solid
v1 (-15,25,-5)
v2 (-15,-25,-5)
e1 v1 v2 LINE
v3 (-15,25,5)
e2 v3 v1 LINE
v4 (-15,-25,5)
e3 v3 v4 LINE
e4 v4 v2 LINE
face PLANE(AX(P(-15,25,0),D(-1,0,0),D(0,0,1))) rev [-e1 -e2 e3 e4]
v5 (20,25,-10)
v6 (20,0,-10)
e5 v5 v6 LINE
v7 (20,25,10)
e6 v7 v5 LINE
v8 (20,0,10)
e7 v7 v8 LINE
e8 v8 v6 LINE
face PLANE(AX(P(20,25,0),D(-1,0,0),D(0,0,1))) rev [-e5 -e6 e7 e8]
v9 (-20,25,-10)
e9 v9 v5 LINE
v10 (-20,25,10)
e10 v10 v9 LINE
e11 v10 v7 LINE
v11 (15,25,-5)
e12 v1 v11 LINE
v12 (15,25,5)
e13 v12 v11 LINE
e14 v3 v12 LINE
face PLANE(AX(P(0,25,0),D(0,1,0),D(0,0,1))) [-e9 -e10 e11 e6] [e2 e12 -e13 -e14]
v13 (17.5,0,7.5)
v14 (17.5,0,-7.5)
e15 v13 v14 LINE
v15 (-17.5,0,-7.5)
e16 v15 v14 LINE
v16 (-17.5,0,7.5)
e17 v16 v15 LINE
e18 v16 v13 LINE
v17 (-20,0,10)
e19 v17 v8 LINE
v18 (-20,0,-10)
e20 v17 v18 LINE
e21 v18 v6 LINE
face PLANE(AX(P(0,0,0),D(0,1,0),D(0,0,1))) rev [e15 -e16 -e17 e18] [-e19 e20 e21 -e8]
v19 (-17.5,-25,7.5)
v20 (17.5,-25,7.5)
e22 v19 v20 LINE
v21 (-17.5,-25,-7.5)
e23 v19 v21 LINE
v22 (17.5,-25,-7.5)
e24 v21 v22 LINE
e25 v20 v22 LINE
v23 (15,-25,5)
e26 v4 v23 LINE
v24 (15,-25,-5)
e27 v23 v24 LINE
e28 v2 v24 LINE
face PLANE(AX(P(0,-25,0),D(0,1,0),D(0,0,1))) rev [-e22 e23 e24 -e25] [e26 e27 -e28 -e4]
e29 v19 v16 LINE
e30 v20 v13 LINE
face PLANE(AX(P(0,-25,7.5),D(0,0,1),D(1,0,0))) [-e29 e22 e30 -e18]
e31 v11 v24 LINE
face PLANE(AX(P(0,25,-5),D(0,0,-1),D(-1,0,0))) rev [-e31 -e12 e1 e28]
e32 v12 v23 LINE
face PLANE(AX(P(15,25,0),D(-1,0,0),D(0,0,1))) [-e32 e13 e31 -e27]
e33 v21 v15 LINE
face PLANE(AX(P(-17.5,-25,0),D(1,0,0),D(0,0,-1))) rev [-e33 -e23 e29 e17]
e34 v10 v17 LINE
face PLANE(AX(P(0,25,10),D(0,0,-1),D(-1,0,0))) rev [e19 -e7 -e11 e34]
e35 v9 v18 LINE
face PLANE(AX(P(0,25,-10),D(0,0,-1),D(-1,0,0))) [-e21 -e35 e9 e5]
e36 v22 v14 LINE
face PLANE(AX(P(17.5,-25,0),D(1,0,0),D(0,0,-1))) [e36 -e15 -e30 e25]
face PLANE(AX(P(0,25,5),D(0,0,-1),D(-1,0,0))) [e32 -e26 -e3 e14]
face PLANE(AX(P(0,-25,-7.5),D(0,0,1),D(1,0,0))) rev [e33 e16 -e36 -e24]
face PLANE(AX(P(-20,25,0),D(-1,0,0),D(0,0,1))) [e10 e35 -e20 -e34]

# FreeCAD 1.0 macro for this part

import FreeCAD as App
import Part
import Sketcher
from FreeCAD import Vector
Q = App.Units.Quantity

doc = App.newDocument("Part")
body = doc.addObject("PartDesign::Body", "Body")

# Sketch on XZ plane
sketch1 = doc.addObject("Sketcher::SketchObject", "Sketch")
body.addObject(sketch1)
sketch1.AttachmentSupport = (doc.XZ_Plane, [""])
sketch1.MapMode = "FlatFace"
sketch1.addGeometry([
    Part.LineSegment(Vector(-20, -10, 0), Vector(-20, 10, 0)),  # 0
    Part.LineSegment(Vector(-20, 10, 0), Vector(20, 10, 0)),  # 1
    Part.LineSegment(Vector(20, 10, 0), Vector(20, -10, 0)),  # 2
    Part.LineSegment(Vector(20, -10, 0), Vector(-20, -10, 0)),  # 3
    Part.LineSegment(Vector(15, 5, 0), Vector(-15, 5, 0)),  # 4
    Part.LineSegment(Vector(-15, 5, 0), Vector(-15, -5, 0)),  # 5
    Part.LineSegment(Vector(-15, -5, 0), Vector(15, -5, 0)),  # 6
    Part.LineSegment(Vector(15, -5, 0), Vector(15, 5, 0)),  # 7
], False)
sketch1.addConstraint([
    Sketcher.Constraint("Coincident", 0, 2, 1, 1),
    Sketcher.Constraint("Coincident", 1, 2, 2, 1),
    Sketcher.Constraint("Coincident", 2, 2, 3, 1),
    Sketcher.Constraint("Coincident", 3, 2, 0, 1),
    Sketcher.Constraint("Coincident", 4, 2, 5, 1),
    Sketcher.Constraint("Coincident", 5, 2, 6, 1),
    Sketcher.Constraint("Coincident", 6, 2, 7, 1),
    Sketcher.Constraint("Coincident", 7, 2, 4, 1),
    Sketcher.Constraint("Vertical", 0),
    Sketcher.Constraint("Horizontal", 1),
    Sketcher.Constraint("Vertical", 2),
    Sketcher.Constraint("Horizontal", 3),
    Sketcher.Constraint("Horizontal", 4),
    Sketcher.Constraint("Vertical", 5),
    Sketcher.Constraint("Horizontal", 6),
    Sketcher.Constraint("Vertical", 7),
    Sketcher.Constraint("Symmetric", 0, 2, 2, 2, -1, 1),
    Sketcher.Constraint("Symmetric", 4, 2, 6, 2, -1, 1),
    Sketcher.Constraint("DistanceX", 1, 1, 1, 2, Q("40 mm")),
    Sketcher.Constraint("DistanceX", 4, 2, 4, 1, Q("30 mm")),
    Sketcher.Constraint("DistanceY", 0, 1, 0, 2, Q("20 mm")),
    Sketcher.Constraint("DistanceY", 5, 2, 5, 1, Q("10 mm")),
])
pad1 = doc.addObject("PartDesign::Pad", "Pad")
body.addObject(pad1)
pad1.Profile = sketch1
pad1.Length = 25
pad1.Reversed = True

# Sketch on XZ plane
sketch2 = doc.addObject("Sketcher::SketchObject", "Sketch001")
body.addObject(sketch2)
sketch2.AttachmentSupport = (doc.XZ_Plane, [""])
sketch2.MapMode = "FlatFace"
sketch2.addGeometry([
    Part.LineSegment(Vector(-18, -8, 0), Vector(-18, 8, 0)),  # 0
    Part.LineSegment(Vector(-18, 8, 0), Vector(18, 8, 0)),  # 1
    Part.LineSegment(Vector(18, 8, 0), Vector(18, -8, 0)),  # 2
    Part.LineSegment(Vector(18, -8, 0), Vector(-18, -8, 0)),  # 3
    Part.LineSegment(Vector(15, 5, 0), Vector(-15, 5, 0)),  # 4
    Part.LineSegment(Vector(-15, 5, 0), Vector(-15, -5, 0)),  # 5
    Part.LineSegment(Vector(-15, -5, 0), Vector(15, -5, 0)),  # 6
    Part.LineSegment(Vector(15, -5, 0), Vector(15, 5, 0)),  # 7
], False)
sketch2.addConstraint([
    Sketcher.Constraint("Coincident", 0, 2, 1, 1),
    Sketcher.Constraint("Coincident", 1, 2, 2, 1),
    Sketcher.Constraint("Coincident", 2, 2, 3, 1),
    Sketcher.Constraint("Coincident", 3, 2, 0, 1),
    Sketcher.Constraint("Coincident", 4, 2, 5, 1),
    Sketcher.Constraint("Coincident", 5, 2, 6, 1),
    Sketcher.Constraint("Coincident", 6, 2, 7, 1),
    Sketcher.Constraint("Coincident", 7, 2, 4, 1),
    Sketcher.Constraint("Vertical", 0),
    Sketcher.Constraint("Horizontal", 1),
    Sketcher.Constraint("Vertical", 2),
    Sketcher.Constraint("Horizontal", 3),
    Sketcher.Constraint("Horizontal", 4),
    Sketcher.Constraint("Vertical", 5),
    Sketcher.Constraint("Horizontal", 6),
    Sketcher.Constraint("Vertical", 7),
    Sketcher.Constraint("Symmetric", 0, 2, 2, 2, -1, 1),
    Sketcher.Constraint("Symmetric", 4, 2, 6, 2, -1, 1),
    Sketcher.Constraint("DistanceX", 1, 1, 1, 2, Q("35 mm")),
    Sketcher.Constraint("DistanceX", 4, 2, 4, 1, Q("30 mm")),
    Sketcher.Constraint("DistanceY", 0, 1, 0, 2, Q("15 mm")),
    Sketcher.Constraint("DistanceY", 5, 2, 5, 1, Q("10 mm")),
])
pad2 = doc.addObject("PartDesign::Pad", "Pad001")
body.addObject(pad2)
pad2.Profile = sketch2
pad2.Length = 25

doc.recompute()
